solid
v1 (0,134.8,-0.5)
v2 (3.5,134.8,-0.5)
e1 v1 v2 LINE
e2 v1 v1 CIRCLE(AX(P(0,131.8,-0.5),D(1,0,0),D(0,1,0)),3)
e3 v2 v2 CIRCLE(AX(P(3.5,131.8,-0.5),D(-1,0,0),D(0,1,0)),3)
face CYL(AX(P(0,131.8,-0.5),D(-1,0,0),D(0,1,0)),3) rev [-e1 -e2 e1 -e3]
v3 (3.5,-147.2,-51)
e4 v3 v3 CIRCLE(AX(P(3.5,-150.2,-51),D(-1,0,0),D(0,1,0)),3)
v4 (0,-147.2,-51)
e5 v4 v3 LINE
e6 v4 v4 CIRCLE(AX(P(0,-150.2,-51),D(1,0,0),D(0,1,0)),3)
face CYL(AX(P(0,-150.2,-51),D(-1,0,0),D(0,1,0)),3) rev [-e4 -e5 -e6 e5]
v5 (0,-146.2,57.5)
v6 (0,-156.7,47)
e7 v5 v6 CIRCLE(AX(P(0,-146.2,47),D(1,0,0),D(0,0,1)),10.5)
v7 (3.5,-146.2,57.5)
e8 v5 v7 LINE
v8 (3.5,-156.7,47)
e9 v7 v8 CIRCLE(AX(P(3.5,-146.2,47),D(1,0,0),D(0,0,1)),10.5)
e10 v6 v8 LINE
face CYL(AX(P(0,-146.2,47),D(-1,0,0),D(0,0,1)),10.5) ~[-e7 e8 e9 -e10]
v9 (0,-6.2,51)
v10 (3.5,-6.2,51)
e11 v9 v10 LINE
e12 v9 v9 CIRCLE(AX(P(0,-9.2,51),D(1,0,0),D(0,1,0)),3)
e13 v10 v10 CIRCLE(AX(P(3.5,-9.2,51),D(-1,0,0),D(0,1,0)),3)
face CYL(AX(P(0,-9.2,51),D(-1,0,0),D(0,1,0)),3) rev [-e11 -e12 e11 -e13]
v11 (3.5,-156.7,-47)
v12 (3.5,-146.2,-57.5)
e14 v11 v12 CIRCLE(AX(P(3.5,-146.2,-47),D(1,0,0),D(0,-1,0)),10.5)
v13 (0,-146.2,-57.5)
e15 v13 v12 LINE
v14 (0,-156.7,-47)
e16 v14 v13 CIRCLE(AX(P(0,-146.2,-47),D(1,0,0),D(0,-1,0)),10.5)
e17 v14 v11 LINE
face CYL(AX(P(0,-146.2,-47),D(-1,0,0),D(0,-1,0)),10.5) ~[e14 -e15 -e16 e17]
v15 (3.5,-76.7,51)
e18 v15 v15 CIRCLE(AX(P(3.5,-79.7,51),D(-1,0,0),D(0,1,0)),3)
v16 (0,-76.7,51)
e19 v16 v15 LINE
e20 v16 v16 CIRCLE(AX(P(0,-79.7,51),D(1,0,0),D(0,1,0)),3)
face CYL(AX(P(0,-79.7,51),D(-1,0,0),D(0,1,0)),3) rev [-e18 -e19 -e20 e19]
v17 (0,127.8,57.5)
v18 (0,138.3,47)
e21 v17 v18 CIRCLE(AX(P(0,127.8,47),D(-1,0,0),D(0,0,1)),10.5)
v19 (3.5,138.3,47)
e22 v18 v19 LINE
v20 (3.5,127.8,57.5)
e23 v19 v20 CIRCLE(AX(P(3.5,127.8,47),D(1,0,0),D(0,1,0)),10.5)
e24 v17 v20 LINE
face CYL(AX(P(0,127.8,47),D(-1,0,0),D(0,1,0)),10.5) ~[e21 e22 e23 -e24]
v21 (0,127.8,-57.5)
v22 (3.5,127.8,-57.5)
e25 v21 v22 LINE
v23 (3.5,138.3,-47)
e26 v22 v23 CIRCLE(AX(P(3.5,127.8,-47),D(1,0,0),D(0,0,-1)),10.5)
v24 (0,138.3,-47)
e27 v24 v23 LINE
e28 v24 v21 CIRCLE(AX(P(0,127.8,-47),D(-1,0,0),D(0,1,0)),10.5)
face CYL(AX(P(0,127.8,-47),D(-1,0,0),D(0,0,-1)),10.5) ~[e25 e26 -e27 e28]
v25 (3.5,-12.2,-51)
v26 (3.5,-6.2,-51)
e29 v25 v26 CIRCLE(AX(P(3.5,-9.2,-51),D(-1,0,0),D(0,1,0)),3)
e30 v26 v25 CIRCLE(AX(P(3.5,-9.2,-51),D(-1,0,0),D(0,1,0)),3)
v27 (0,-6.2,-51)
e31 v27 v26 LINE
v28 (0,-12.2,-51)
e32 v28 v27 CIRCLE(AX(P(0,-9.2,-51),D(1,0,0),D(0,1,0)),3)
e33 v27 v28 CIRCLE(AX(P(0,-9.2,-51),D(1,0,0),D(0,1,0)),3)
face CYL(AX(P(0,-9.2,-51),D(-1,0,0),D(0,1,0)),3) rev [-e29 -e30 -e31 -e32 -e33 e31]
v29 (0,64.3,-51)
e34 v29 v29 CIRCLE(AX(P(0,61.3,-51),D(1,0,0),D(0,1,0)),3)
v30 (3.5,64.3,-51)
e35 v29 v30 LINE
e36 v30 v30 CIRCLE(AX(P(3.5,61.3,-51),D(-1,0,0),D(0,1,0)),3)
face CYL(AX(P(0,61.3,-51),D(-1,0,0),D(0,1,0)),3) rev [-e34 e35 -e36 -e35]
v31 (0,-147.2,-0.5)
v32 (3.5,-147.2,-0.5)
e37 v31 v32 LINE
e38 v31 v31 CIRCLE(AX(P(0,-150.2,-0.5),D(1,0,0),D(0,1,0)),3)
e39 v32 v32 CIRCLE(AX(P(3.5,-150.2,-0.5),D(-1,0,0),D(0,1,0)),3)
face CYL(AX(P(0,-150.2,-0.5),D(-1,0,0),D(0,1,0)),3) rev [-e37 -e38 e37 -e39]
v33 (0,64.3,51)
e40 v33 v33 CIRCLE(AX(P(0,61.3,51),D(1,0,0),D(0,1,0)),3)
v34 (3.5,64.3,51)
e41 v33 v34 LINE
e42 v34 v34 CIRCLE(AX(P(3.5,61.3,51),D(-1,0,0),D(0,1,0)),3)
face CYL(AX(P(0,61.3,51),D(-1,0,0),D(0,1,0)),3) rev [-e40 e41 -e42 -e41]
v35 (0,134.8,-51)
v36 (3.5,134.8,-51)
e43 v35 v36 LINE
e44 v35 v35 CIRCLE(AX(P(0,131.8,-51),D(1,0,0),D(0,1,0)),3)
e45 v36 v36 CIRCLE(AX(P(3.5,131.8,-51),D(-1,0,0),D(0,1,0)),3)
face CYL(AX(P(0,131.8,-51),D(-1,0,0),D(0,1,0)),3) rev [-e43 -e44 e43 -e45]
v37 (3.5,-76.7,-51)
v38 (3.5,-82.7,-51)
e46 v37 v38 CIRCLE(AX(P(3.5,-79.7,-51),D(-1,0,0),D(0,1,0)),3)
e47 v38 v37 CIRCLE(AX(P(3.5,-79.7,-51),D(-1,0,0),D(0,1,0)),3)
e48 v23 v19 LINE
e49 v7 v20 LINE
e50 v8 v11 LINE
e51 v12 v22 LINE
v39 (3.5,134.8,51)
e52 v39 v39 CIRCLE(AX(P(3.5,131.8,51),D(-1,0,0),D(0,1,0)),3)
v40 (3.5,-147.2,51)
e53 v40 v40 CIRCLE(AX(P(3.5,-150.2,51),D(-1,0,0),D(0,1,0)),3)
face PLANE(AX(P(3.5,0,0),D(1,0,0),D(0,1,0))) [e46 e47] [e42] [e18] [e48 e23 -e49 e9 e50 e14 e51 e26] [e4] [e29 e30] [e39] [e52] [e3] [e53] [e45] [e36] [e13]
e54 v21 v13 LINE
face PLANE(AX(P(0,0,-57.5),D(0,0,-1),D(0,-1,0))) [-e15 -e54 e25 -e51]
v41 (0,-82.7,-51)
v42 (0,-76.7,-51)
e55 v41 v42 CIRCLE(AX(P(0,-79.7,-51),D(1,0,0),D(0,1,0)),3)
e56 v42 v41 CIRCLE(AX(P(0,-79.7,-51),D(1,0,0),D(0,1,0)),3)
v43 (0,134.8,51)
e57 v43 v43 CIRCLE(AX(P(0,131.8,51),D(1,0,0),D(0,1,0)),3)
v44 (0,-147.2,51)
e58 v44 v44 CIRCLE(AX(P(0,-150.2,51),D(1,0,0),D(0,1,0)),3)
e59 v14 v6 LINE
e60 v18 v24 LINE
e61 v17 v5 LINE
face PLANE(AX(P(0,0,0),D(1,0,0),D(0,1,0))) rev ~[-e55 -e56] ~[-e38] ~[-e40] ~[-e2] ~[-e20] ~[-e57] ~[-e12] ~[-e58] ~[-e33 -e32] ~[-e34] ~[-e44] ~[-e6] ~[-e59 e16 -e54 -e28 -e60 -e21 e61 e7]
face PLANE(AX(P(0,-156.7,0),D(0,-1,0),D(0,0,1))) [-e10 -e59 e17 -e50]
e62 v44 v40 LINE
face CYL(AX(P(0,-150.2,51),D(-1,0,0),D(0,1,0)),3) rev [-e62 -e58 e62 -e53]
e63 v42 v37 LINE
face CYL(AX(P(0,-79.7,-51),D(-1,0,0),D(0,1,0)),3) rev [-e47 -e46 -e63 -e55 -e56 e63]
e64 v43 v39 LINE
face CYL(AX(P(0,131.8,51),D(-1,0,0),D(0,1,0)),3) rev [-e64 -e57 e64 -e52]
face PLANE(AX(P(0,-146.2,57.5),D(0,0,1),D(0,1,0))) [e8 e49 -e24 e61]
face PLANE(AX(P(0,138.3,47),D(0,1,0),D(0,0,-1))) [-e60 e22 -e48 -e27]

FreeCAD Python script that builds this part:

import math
import FreeCAD as App
import Part
import Sketcher

V = App.Vector

doc = App.newDocument("Part")
body = doc.addObject("PartDesign::Body", "Body")

sketch1 = body.newObject("Sketcher::SketchObject", "Sketch")
sketch1.AttachmentSupport = (doc.getObject("YZ_Plane"), [""])
sketch1.MapMode = "FlatFace"
sketch1.addGeometry(Part.ArcOfCircle(Part.Circle(V(-146, 47, 0), V(0, 0, 1), 10), math.radians(90), math.radians(180)), False)
sketch1.addGeometry(Part.LineSegment(V(-157, 47, 0), V(-157, -47, 0)), False)
sketch1.addGeometry(Part.ArcOfCircle(Part.Circle(V(-146, -47, 0), V(0, 0, 1), 10), math.radians(180), math.radians(270)), False)
sketch1.addGeometry(Part.LineSegment(V(-146, -58, 0), V(128, -58, 0)), False)
sketch1.addGeometry(Part.ArcOfCircle(Part.Circle(V(128, -47, 0), V(0, 0, 1), 10), math.radians(-90), math.radians(0)), False)
sketch1.addGeometry(Part.LineSegment(V(138, -47, 0), V(138, 47, 0)), False)
sketch1.addGeometry(Part.ArcOfCircle(Part.Circle(V(128, 47, 0), V(0, 0, 1), 11), math.radians(0), math.radians(90)), False)
sketch1.addGeometry(Part.LineSegment(V(128, 58, 0), V(-146, 58, 0)), False)
sketch1.addConstraint(Sketcher.Constraint("Tangent", 0, 2, 1, 1))
sketch1.addConstraint(Sketcher.Constraint("Tangent", 1, 2, 2, 1))
sketch1.addConstraint(Sketcher.Constraint("Tangent", 2, 2, 3, 1))
sketch1.addConstraint(Sketcher.Constraint("Tangent", 3, 2, 4, 1))
sketch1.addConstraint(Sketcher.Constraint("Tangent", 4, 2, 5, 1))
sketch1.addConstraint(Sketcher.Constraint("Tangent", 5, 2, 6, 1))
sketch1.addConstraint(Sketcher.Constraint("Tangent", 6, 2, 7, 1))
sketch1.addConstraint(Sketcher.Constraint("Tangent", 7, 2, 0, 1))
sketch1.addConstraint(Sketcher.Constraint("Vertical", 1))
sketch1.addConstraint(Sketcher.Constraint("Horizontal", 3))
sketch1.addConstraint(Sketcher.Constraint("Vertical", 5))
sketch1.addConstraint(Sketcher.Constraint("Horizontal", 7))
sketch1.addConstraint(Sketcher.Constraint("Equal", 0, 2))
sketch1.addConstraint(Sketcher.Constraint("Equal", 2, 4))
sketch1.addConstraint(Sketcher.Constraint("Equal", 4, 6))
sketch1.addConstraint(Sketcher.Constraint("Radius", 0, 10.5))
sketch1.addConstraint(Sketcher.Constraint("DistanceY", 3, 2, 6, 2, 115.0))
sketch1.addConstraint(Sketcher.Constraint("DistanceX", -1, 1, 4, 2, 138.3))
sketch1.addConstraint(Sketcher.Constraint("DistanceX", 3, 1, 3, 2, 274.0))
sketch1.addConstraint(Sketcher.Constraint("DistanceY", -1, 1, 0, 3, 47.0))
pad1 = body.newObject("PartDesign::Pad", "Pad")
pad1.Profile = sketch1
pad1.Length = 3.5

sketch2 = body.newObject("Sketcher::SketchObject", "Sketch001")
sketch2.AttachmentSupport = (doc.getObject("YZ_Plane"), [""])
sketch2.MapMode = "FlatFace"
sketch2.addGeometry(Part.Circle(V(-150.2, -51, 0), V(0, 0, 1), 3), False)
sketch2.addGeometry(Part.Circle(V(-79.7, -51, 0), V(0, 0, 1), 3), False)
sketch2.addGeometry(Part.Circle(V(-9.2, -51, 0), V(0, 0, 1), 3), False)
sketch2.addGeometry(Part.Circle(V(-9.2, 51, 0), V(0, 0, 1), 3), False)
sketch2.addGeometry(Part.Circle(V(61.3, 51, 0), V(0, 0, 1), 3), False)
sketch2.addGeometry(Part.Circle(V(-150.2, -0.5, 0), V(0, 0, 1), 3), False)
sketch2.addGeometry(Part.Circle(V(131.8, 51, 0), V(0, 0, 1), 3), False)
sketch2.addGeometry(Part.Circle(V(131.8, -0.5, 0), V(0, 0, 1), 3), False)
sketch2.addGeometry(Part.Circle(V(61.3, -51, 0), V(0, 0, 1), 3), False)
sketch2.addGeometry(Part.Circle(V(-79.7, 51, 0), V(0, 0, 1), 3), False)
sketch2.addGeometry(Part.Circle(V(-150.2, 51, 0), V(0, 0, 1), 3), False)
sketch2.addGeometry(Part.Circle(V(131.8, -51, 0), V(0, 0, 1), 3), False)
sketch2.addConstraint(Sketcher.Constraint("Equal", 0, 1))
sketch2.addConstraint(Sketcher.Constraint("Equal", 1, 2))
sketch2.addConstraint(Sketcher.Constraint("Equal", 2, 3))
sketch2.addConstraint(Sketcher.Constraint("Equal", 3, 4))
sketch2.addConstraint(Sketcher.Constraint("Equal", 4, 5))
sketch2.addConstraint(Sketcher.Constraint("Equal", 5, 6))
sketch2.addConstraint(Sketcher.Constraint("Equal", 6, 7))
sketch2.addConstraint(Sketcher.Constraint("Equal", 7, 8))
sketch2.addConstraint(Sketcher.Constraint("Equal", 8, 9))
sketch2.addConstraint(Sketcher.Constraint("Equal", 9, 10))
sketch2.addConstraint(Sketcher.Constraint("Equal", 10, 11))
sketch2.addConstraint(Sketcher.Constraint("Symmetric", 2, 3, 3, 3, -1))
sketch2.addConstraint(Sketcher.Constraint("Symmetric", 4, 3, 8, 3, -1))
sketch2.addConstraint(Sketcher.Constraint("Symmetric", 1, 3, 9, 3, -1))
sketch2.addConstraint(Sketcher.Constraint("Symmetric", 0, 3, 10, 3, -1))
sketch2.addConstraint(Sketcher.Constraint("Symmetric", 6, 3, 11, 3, -1))
sketch2.addConstraint(Sketcher.Constraint("Horizontal", 0, 3, 1, 3))
sketch2.addConstraint(Sketcher.Constraint("Horizontal", 1, 3, 2, 3))
sketch2.addConstraint(Sketcher.Constraint("Horizontal", 3, 3, 4, 3))
sketch2.addConstraint(Sketcher.Constraint("Horizontal", 4, 3, 6, 3))
sketch2.addConstraint(Sketcher.Constraint("Horizontal", 5, 3, 7, 3))
sketch2.addConstraint(Sketcher.Constraint("Vertical", 0, 3, 5, 3))
sketch2.addConstraint(Sketcher.Constraint("Vertical", 6, 3, 7, 3))
sketch2.addConstraint(Sketcher.Constraint("Diameter", 0, 6.0))
sketch2.addConstraint(Sketcher.Constraint("DistanceX", 0, 3, 1, 3, 70.5))
sketch2.addConstraint(Sketcher.Constraint("DistanceX", 1, 3, 2, 3, 70.5))
sketch2.addConstraint(Sketcher.Constraint("DistanceX", 3, 3, 4, 3, 70.5))
sketch2.addConstraint(Sketcher.Constraint("DistanceX", 4, 3, 6, 3, 70.5))
sketch2.addConstraint(Sketcher.Constraint("DistanceY", 0, 3, -1, 1, 51.0))
sketch2.addConstraint(Sketcher.Constraint("DistanceX", 0, 3, -1, 1, 150.2))
sketch2.addConstraint(Sketcher.Constraint("DistanceY", 5, 3, -1, 1, 0.5))
pocket1 = body.newObject("PartDesign::Pocket", "Pocket")
pocket1.Profile = sketch2
pocket1.Length = 5
pocket1.Reversed = True

doc.recompute()
